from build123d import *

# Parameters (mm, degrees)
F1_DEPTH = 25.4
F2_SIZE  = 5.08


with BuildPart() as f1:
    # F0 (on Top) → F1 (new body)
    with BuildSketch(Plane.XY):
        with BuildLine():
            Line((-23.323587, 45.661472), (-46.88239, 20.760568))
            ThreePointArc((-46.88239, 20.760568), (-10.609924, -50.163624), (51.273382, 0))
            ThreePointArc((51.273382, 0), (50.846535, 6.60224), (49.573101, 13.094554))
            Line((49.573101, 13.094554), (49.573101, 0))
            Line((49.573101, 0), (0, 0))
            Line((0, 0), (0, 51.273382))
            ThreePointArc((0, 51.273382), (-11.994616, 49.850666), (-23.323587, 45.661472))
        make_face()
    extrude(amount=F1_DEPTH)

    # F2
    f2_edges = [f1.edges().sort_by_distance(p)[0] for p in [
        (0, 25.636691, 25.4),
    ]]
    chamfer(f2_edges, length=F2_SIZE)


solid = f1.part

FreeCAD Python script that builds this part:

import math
import FreeCAD as App
import Part
import Sketcher
from FreeCAD import Vector
Q = App.Units.Quantity


def edges_at(feature, points):
    """Names of the edges that pass closest to the given points."""
    edges = feature.Shape.Edges
    near = lambda p: min(range(len(edges)), key=lambda i: edges[i].distToShape(Part.Vertex(*p))[0])
    return sorted({f"Edge{near(p) + 1}" for p in points})

doc = App.newDocument("Part")
body = doc.addObject("PartDesign::Body", "Body")

sketch1 = body.newObject("Sketcher::SketchObject", "Sketch")
sketch1.AttachmentSupport = (doc.getObject("XY_Plane"), [""])
sketch1.MapMode = "FlatFace"
sketch1.addGeometry([
    Part.LineSegment(Vector(-23.323587, 45.661472, 0), Vector(-46.88239, 20.760568, 0)),
    Part.ArcOfCircle(Part.Circle(Vector(0, 0, 0), Vector(0, 0, 1), 51.273382), math.radians(156.115169), math.radians(360)),
    Part.ArcOfCircle(Part.Circle(Vector(0, -0.000001, 0), Vector(0, 0, 1), 51.273382), math.radians(0.000001), math.radians(14.796517)),
    Part.LineSegment(Vector(49.573101, 13.094554, 0), Vector(49.573101, 0, 0)),
    Part.LineSegment(Vector(49.573101, 0, 0), Vector(0, 0, 0)),
    Part.LineSegment(Vector(0, 0, 0), Vector(0, 51.273382, 0)),
    Part.ArcOfCircle(Part.Circle(Vector(0, -0.000002, 0), Vector(0, 0, 1), 51.273384), math.radians(90), math.radians(117.057652)),
], False)
sketch1.addConstraint([
    Sketcher.Constraint("Coincident", 0, 2, 1, 1),
    Sketcher.Constraint("Tangent", 1, 2, 2, 1),
    Sketcher.Constraint("Coincident", 2, 2, 3, 1),
    Sketcher.Constraint("Coincident", 3, 2, 4, 1),
    Sketcher.Constraint("Coincident", 4, 2, 5, 1),
    Sketcher.Constraint("Coincident", 5, 2, 6, 1),
    Sketcher.Constraint("Coincident", 6, 2, 0, 1),
    Sketcher.Constraint("Vertical", 3),
    Sketcher.Constraint("Horizontal", 4),
    Sketcher.Constraint("Vertical", 5),
    Sketcher.Constraint("Coincident", 1, 3, -1, 1),
    Sketcher.Constraint("Coincident", 6, 3, -1, 1),
    Sketcher.Constraint("Coincident", 4, 2, -1, 1),
    Sketcher.Constraint("Equal", 1, 2),
    Sketcher.Constraint("PointOnObject", 1, 2, -1),
    Sketcher.Constraint("Radius", 1, 51.273382),
    Sketcher.Constraint("DistanceX", 4, 2, 4, 1, 49.573101),
    Sketcher.Constraint("Radius", 6, 51.273384),
    Sketcher.Constraint("DistanceX", 0, 2, -1, 1, 46.88239),
    Sketcher.Constraint("DistanceY", -1, 1, 6, 2, 45.661472),
])
pad1 = body.newObject("PartDesign::Pad", "Pad")
pad1.Profile = sketch1
pad1.Length = Q("1 in")
doc.recompute()

chamfer = body.newObject("PartDesign::Chamfer", "Chamfer")
chamfer.Base = (pad1, edges_at(pad1, [(0, 25.637, 25.4)]))
chamfer.Size = Q("0.2 in")

doc.recompute()
